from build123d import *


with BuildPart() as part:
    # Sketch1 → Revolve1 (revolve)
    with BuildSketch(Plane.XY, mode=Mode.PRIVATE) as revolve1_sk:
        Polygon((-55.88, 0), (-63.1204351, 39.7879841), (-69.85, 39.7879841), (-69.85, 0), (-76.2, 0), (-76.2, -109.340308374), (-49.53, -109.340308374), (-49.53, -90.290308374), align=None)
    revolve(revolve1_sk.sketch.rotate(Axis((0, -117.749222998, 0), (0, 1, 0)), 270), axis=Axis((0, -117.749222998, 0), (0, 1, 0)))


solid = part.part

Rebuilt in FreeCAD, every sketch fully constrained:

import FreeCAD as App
import Part
import Sketcher

V = App.Vector
Q = App.Units.Quantity

doc = App.newDocument("Part")
body = doc.addObject("PartDesign::Body", "Body")

# Sketch on XY plane
sketch1 = body.newObject("Sketcher::SketchObject", "Sketch")
sketch1.AttachmentSupport = (doc.getObject("XY_Plane"), [""])
sketch1.MapMode = "FlatFace"
sketch1.addGeometry([
    Part.LineSegment(V(-55.88, 0, 0), V(-63.120435, 39.787984, 0)),  # 0
    Part.LineSegment(V(-63.120435, 39.787984, 0), V(-69.85, 39.787984, 0)),  # 1
    Part.LineSegment(V(-69.85, 39.787984, 0), V(-69.85, 0, 0)),  # 2
    Part.LineSegment(V(-69.85, 0, 0), V(-76.2, 0, 0)),  # 3
    Part.LineSegment(V(-76.2, 0, 0), V(-76.2, -109.340308, 0)),  # 4
    Part.LineSegment(V(-76.2, -109.340308, 0), V(-49.53, -109.340308, 0)),  # 5
    Part.LineSegment(V(-49.53, -109.340308, 0), V(-49.53, -90.290308, 0)),  # 6
    Part.LineSegment(V(-49.53, -90.290308, 0), V(-55.88, 0, 0)),  # 7
], False)
sketch1.addConstraint([
    Sketcher.Constraint("Coincident", 0, 2, 1, 1),
    Sketcher.Constraint("Coincident", 1, 2, 2, 1),
    Sketcher.Constraint("Coincident", 2, 2, 3, 1),
    Sketcher.Constraint("Coincident", 3, 2, 4, 1),
    Sketcher.Constraint("Coincident", 4, 2, 5, 1),
    Sketcher.Constraint("Coincident", 5, 2, 6, 1),
    Sketcher.Constraint("Coincident", 6, 2, 7, 1),
    Sketcher.Constraint("Coincident", 7, 2, 0, 1),
    Sketcher.Constraint("Horizontal", 1),
    Sketcher.Constraint("Vertical", 2),
    Sketcher.Constraint("Horizontal", 3),
    Sketcher.Constraint("Vertical", 4),
    Sketcher.Constraint("Horizontal", 5),
    Sketcher.Constraint("Vertical", 6),
    Sketcher.Constraint("PointOnObject", 2, 2, -1),
    Sketcher.Constraint("PointOnObject", 7, 2, -1),
    Sketcher.Constraint("DistanceX", 3, 2, -1, 1, Q("3 in")),
    Sketcher.Constraint("DistanceX", 3, 2, 3, 1, Q("0.25 in")),
    Sketcher.Constraint("DistanceX", 5, 1, 5, 2, Q("1.05 in")),
    Sketcher.Constraint("DistanceY", 6, 1, 6, 2, Q("0.75 in")),
    Sketcher.Constraint("DistanceX", 7, 2, -1, 1, Q("2.2 in")),
    Sketcher.Constraint("DistanceY", 4, 2, 4, 1, Q("109.340308 mm")),
    Sketcher.Constraint("Distance", 0, Q("40.441409 mm")),
    Sketcher.Constraint("DistanceX", 1, 2, 1, 1, Q("6.729565 mm")),
])
revolution = body.newObject("PartDesign::Revolution", "Revolution")
revolution.Profile = sketch1
revolution.ReferenceAxis = (sketch1, ["V_Axis"])
revolution.Angle = 360

doc.recompute()
